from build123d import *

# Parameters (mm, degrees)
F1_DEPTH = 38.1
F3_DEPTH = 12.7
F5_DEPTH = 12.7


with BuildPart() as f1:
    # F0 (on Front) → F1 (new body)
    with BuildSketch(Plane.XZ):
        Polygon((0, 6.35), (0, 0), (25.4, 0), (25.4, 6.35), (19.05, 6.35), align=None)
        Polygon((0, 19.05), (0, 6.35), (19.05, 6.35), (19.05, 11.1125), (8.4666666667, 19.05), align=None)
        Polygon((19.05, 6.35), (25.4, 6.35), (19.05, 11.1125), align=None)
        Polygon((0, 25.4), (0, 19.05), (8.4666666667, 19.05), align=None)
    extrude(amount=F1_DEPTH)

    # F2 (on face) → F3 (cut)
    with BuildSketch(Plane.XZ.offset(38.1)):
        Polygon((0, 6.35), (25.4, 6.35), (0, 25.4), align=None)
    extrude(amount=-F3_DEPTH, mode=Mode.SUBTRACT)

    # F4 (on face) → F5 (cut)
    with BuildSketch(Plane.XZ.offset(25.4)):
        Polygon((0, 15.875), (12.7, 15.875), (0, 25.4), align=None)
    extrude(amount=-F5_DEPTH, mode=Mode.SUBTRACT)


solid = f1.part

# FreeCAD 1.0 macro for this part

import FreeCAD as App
import Part
import Sketcher

V = App.Vector
Q = App.Units.Quantity


def add_polygon(sketch, points):
    """Adds a closed chain of lines whose ends are joined by coincident constraints."""
    first, n = sketch.GeometryCount, len(points)
    for a, b in zip(points, points[1:] + points[:1]):
        sketch.addGeometry(Part.LineSegment(App.Vector(*a, 0), App.Vector(*b, 0)), False)
    for i in range(n):
        sketch.addConstraint(Sketcher.Constraint("Coincident", first + i, 2, first + (i + 1) % n, 1))

doc = App.newDocument("Part")
body = doc.addObject("PartDesign::Body", "Body")

sketch1 = body.newObject("Sketcher::SketchObject", "Sketch")
sketch1.AttachmentSupport = (doc.getObject("XZ_Plane"), [""])
sketch1.MapMode = "FlatFace"
add_polygon(sketch1, [(0, 0), (25.4, 0), (25.4, 6.35), (19.05, 11.1125), (8.466667, 19.05), (0, 25.4)])
sketch1.addConstraint([
    Sketcher.Constraint("Horizontal", 0),
    Sketcher.Constraint("Vertical", 1),
    Sketcher.Constraint("Vertical", 5),
    Sketcher.Constraint("Coincident", 5, 2, -1, 1),
    Sketcher.Constraint("Parallel", 2, 3),
    Sketcher.Constraint("Parallel", 3, 4),
    Sketcher.Constraint("Equal", 0, 5),
    Sketcher.Constraint("DistanceX", 0, 1, 0, 2, Q("1 in")),
    Sketcher.Constraint("DistanceY", 1, 1, 1, 2, Q("0.25 in")),
    Sketcher.Constraint("DistanceY", 1, 2, 3, 2, Q("0.5 in")),
    Sketcher.Constraint("DistanceX", -1, 1, 2, 2, Q("0.75 in")),
])
pad1 = body.newObject("PartDesign::Pad", "Pad")
pad1.Profile = sketch1
pad1.Length = Q("1.5 in")

sketch2 = body.newObject("Sketcher::SketchObject", "Sketch001")
sketch2.AttachmentSupport = (doc.getObject("XZ_Plane"), [""])
sketch2.MapMode = "FlatFace"
sketch2.AttachmentOffset = App.Placement(V(0, 0, 1.5 * 25.4), App.Rotation())
add_polygon(sketch2, [(0, 6.35), (25.4, 6.35), (0, 25.4)])
sketch2.addConstraint([
    Sketcher.Constraint("Horizontal", 0),
    Sketcher.Constraint("Vertical", 2),
    Sketcher.Constraint("PointOnObject", 1, 2, -2),
    Sketcher.Constraint("DistanceX", 0, 1, 0, 2, Q("1 in")),
    Sketcher.Constraint("DistanceY", -1, 1, 1, 2, Q("1 in")),
    Sketcher.Constraint("DistanceY", 2, 2, 2, 1, Q("0.75 in")),
])
pocket1 = body.newObject("PartDesign::Pocket", "Pocket")
pocket1.Profile = sketch2
pocket1.Length = Q("0.5 in")

sketch3 = body.newObject("Sketcher::SketchObject", "Sketch002")
sketch3.AttachmentSupport = (doc.getObject("XZ_Plane"), [""])
sketch3.MapMode = "FlatFace"
sketch3.AttachmentOffset = App.Placement(V(0, 0, 1 * 25.4), App.Rotation())
add_polygon(sketch3, [(0, 15.875), (12.7, 15.875), (0, 25.4)])
sketch3.addConstraint([
    Sketcher.Constraint("Horizontal", 0),
    Sketcher.Constraint("Vertical", 2),
    Sketcher.Constraint("PointOnObject", 1, 2, -2),
    Sketcher.Constraint("DistanceX", 0, 1, 0, 2, Q("0.5 in")),
    Sketcher.Constraint("DistanceY", -1, 1, 1, 2, Q("1 in")),
    Sketcher.Constraint("DistanceY", 2, 2, 2, 1, Q("0.375 in")),
])
pocket2 = body.newObject("PartDesign::Pocket", "Pocket001")
pocket2.Profile = sketch3
pocket2.Length = Q("0.5 in")

doc.recompute()
